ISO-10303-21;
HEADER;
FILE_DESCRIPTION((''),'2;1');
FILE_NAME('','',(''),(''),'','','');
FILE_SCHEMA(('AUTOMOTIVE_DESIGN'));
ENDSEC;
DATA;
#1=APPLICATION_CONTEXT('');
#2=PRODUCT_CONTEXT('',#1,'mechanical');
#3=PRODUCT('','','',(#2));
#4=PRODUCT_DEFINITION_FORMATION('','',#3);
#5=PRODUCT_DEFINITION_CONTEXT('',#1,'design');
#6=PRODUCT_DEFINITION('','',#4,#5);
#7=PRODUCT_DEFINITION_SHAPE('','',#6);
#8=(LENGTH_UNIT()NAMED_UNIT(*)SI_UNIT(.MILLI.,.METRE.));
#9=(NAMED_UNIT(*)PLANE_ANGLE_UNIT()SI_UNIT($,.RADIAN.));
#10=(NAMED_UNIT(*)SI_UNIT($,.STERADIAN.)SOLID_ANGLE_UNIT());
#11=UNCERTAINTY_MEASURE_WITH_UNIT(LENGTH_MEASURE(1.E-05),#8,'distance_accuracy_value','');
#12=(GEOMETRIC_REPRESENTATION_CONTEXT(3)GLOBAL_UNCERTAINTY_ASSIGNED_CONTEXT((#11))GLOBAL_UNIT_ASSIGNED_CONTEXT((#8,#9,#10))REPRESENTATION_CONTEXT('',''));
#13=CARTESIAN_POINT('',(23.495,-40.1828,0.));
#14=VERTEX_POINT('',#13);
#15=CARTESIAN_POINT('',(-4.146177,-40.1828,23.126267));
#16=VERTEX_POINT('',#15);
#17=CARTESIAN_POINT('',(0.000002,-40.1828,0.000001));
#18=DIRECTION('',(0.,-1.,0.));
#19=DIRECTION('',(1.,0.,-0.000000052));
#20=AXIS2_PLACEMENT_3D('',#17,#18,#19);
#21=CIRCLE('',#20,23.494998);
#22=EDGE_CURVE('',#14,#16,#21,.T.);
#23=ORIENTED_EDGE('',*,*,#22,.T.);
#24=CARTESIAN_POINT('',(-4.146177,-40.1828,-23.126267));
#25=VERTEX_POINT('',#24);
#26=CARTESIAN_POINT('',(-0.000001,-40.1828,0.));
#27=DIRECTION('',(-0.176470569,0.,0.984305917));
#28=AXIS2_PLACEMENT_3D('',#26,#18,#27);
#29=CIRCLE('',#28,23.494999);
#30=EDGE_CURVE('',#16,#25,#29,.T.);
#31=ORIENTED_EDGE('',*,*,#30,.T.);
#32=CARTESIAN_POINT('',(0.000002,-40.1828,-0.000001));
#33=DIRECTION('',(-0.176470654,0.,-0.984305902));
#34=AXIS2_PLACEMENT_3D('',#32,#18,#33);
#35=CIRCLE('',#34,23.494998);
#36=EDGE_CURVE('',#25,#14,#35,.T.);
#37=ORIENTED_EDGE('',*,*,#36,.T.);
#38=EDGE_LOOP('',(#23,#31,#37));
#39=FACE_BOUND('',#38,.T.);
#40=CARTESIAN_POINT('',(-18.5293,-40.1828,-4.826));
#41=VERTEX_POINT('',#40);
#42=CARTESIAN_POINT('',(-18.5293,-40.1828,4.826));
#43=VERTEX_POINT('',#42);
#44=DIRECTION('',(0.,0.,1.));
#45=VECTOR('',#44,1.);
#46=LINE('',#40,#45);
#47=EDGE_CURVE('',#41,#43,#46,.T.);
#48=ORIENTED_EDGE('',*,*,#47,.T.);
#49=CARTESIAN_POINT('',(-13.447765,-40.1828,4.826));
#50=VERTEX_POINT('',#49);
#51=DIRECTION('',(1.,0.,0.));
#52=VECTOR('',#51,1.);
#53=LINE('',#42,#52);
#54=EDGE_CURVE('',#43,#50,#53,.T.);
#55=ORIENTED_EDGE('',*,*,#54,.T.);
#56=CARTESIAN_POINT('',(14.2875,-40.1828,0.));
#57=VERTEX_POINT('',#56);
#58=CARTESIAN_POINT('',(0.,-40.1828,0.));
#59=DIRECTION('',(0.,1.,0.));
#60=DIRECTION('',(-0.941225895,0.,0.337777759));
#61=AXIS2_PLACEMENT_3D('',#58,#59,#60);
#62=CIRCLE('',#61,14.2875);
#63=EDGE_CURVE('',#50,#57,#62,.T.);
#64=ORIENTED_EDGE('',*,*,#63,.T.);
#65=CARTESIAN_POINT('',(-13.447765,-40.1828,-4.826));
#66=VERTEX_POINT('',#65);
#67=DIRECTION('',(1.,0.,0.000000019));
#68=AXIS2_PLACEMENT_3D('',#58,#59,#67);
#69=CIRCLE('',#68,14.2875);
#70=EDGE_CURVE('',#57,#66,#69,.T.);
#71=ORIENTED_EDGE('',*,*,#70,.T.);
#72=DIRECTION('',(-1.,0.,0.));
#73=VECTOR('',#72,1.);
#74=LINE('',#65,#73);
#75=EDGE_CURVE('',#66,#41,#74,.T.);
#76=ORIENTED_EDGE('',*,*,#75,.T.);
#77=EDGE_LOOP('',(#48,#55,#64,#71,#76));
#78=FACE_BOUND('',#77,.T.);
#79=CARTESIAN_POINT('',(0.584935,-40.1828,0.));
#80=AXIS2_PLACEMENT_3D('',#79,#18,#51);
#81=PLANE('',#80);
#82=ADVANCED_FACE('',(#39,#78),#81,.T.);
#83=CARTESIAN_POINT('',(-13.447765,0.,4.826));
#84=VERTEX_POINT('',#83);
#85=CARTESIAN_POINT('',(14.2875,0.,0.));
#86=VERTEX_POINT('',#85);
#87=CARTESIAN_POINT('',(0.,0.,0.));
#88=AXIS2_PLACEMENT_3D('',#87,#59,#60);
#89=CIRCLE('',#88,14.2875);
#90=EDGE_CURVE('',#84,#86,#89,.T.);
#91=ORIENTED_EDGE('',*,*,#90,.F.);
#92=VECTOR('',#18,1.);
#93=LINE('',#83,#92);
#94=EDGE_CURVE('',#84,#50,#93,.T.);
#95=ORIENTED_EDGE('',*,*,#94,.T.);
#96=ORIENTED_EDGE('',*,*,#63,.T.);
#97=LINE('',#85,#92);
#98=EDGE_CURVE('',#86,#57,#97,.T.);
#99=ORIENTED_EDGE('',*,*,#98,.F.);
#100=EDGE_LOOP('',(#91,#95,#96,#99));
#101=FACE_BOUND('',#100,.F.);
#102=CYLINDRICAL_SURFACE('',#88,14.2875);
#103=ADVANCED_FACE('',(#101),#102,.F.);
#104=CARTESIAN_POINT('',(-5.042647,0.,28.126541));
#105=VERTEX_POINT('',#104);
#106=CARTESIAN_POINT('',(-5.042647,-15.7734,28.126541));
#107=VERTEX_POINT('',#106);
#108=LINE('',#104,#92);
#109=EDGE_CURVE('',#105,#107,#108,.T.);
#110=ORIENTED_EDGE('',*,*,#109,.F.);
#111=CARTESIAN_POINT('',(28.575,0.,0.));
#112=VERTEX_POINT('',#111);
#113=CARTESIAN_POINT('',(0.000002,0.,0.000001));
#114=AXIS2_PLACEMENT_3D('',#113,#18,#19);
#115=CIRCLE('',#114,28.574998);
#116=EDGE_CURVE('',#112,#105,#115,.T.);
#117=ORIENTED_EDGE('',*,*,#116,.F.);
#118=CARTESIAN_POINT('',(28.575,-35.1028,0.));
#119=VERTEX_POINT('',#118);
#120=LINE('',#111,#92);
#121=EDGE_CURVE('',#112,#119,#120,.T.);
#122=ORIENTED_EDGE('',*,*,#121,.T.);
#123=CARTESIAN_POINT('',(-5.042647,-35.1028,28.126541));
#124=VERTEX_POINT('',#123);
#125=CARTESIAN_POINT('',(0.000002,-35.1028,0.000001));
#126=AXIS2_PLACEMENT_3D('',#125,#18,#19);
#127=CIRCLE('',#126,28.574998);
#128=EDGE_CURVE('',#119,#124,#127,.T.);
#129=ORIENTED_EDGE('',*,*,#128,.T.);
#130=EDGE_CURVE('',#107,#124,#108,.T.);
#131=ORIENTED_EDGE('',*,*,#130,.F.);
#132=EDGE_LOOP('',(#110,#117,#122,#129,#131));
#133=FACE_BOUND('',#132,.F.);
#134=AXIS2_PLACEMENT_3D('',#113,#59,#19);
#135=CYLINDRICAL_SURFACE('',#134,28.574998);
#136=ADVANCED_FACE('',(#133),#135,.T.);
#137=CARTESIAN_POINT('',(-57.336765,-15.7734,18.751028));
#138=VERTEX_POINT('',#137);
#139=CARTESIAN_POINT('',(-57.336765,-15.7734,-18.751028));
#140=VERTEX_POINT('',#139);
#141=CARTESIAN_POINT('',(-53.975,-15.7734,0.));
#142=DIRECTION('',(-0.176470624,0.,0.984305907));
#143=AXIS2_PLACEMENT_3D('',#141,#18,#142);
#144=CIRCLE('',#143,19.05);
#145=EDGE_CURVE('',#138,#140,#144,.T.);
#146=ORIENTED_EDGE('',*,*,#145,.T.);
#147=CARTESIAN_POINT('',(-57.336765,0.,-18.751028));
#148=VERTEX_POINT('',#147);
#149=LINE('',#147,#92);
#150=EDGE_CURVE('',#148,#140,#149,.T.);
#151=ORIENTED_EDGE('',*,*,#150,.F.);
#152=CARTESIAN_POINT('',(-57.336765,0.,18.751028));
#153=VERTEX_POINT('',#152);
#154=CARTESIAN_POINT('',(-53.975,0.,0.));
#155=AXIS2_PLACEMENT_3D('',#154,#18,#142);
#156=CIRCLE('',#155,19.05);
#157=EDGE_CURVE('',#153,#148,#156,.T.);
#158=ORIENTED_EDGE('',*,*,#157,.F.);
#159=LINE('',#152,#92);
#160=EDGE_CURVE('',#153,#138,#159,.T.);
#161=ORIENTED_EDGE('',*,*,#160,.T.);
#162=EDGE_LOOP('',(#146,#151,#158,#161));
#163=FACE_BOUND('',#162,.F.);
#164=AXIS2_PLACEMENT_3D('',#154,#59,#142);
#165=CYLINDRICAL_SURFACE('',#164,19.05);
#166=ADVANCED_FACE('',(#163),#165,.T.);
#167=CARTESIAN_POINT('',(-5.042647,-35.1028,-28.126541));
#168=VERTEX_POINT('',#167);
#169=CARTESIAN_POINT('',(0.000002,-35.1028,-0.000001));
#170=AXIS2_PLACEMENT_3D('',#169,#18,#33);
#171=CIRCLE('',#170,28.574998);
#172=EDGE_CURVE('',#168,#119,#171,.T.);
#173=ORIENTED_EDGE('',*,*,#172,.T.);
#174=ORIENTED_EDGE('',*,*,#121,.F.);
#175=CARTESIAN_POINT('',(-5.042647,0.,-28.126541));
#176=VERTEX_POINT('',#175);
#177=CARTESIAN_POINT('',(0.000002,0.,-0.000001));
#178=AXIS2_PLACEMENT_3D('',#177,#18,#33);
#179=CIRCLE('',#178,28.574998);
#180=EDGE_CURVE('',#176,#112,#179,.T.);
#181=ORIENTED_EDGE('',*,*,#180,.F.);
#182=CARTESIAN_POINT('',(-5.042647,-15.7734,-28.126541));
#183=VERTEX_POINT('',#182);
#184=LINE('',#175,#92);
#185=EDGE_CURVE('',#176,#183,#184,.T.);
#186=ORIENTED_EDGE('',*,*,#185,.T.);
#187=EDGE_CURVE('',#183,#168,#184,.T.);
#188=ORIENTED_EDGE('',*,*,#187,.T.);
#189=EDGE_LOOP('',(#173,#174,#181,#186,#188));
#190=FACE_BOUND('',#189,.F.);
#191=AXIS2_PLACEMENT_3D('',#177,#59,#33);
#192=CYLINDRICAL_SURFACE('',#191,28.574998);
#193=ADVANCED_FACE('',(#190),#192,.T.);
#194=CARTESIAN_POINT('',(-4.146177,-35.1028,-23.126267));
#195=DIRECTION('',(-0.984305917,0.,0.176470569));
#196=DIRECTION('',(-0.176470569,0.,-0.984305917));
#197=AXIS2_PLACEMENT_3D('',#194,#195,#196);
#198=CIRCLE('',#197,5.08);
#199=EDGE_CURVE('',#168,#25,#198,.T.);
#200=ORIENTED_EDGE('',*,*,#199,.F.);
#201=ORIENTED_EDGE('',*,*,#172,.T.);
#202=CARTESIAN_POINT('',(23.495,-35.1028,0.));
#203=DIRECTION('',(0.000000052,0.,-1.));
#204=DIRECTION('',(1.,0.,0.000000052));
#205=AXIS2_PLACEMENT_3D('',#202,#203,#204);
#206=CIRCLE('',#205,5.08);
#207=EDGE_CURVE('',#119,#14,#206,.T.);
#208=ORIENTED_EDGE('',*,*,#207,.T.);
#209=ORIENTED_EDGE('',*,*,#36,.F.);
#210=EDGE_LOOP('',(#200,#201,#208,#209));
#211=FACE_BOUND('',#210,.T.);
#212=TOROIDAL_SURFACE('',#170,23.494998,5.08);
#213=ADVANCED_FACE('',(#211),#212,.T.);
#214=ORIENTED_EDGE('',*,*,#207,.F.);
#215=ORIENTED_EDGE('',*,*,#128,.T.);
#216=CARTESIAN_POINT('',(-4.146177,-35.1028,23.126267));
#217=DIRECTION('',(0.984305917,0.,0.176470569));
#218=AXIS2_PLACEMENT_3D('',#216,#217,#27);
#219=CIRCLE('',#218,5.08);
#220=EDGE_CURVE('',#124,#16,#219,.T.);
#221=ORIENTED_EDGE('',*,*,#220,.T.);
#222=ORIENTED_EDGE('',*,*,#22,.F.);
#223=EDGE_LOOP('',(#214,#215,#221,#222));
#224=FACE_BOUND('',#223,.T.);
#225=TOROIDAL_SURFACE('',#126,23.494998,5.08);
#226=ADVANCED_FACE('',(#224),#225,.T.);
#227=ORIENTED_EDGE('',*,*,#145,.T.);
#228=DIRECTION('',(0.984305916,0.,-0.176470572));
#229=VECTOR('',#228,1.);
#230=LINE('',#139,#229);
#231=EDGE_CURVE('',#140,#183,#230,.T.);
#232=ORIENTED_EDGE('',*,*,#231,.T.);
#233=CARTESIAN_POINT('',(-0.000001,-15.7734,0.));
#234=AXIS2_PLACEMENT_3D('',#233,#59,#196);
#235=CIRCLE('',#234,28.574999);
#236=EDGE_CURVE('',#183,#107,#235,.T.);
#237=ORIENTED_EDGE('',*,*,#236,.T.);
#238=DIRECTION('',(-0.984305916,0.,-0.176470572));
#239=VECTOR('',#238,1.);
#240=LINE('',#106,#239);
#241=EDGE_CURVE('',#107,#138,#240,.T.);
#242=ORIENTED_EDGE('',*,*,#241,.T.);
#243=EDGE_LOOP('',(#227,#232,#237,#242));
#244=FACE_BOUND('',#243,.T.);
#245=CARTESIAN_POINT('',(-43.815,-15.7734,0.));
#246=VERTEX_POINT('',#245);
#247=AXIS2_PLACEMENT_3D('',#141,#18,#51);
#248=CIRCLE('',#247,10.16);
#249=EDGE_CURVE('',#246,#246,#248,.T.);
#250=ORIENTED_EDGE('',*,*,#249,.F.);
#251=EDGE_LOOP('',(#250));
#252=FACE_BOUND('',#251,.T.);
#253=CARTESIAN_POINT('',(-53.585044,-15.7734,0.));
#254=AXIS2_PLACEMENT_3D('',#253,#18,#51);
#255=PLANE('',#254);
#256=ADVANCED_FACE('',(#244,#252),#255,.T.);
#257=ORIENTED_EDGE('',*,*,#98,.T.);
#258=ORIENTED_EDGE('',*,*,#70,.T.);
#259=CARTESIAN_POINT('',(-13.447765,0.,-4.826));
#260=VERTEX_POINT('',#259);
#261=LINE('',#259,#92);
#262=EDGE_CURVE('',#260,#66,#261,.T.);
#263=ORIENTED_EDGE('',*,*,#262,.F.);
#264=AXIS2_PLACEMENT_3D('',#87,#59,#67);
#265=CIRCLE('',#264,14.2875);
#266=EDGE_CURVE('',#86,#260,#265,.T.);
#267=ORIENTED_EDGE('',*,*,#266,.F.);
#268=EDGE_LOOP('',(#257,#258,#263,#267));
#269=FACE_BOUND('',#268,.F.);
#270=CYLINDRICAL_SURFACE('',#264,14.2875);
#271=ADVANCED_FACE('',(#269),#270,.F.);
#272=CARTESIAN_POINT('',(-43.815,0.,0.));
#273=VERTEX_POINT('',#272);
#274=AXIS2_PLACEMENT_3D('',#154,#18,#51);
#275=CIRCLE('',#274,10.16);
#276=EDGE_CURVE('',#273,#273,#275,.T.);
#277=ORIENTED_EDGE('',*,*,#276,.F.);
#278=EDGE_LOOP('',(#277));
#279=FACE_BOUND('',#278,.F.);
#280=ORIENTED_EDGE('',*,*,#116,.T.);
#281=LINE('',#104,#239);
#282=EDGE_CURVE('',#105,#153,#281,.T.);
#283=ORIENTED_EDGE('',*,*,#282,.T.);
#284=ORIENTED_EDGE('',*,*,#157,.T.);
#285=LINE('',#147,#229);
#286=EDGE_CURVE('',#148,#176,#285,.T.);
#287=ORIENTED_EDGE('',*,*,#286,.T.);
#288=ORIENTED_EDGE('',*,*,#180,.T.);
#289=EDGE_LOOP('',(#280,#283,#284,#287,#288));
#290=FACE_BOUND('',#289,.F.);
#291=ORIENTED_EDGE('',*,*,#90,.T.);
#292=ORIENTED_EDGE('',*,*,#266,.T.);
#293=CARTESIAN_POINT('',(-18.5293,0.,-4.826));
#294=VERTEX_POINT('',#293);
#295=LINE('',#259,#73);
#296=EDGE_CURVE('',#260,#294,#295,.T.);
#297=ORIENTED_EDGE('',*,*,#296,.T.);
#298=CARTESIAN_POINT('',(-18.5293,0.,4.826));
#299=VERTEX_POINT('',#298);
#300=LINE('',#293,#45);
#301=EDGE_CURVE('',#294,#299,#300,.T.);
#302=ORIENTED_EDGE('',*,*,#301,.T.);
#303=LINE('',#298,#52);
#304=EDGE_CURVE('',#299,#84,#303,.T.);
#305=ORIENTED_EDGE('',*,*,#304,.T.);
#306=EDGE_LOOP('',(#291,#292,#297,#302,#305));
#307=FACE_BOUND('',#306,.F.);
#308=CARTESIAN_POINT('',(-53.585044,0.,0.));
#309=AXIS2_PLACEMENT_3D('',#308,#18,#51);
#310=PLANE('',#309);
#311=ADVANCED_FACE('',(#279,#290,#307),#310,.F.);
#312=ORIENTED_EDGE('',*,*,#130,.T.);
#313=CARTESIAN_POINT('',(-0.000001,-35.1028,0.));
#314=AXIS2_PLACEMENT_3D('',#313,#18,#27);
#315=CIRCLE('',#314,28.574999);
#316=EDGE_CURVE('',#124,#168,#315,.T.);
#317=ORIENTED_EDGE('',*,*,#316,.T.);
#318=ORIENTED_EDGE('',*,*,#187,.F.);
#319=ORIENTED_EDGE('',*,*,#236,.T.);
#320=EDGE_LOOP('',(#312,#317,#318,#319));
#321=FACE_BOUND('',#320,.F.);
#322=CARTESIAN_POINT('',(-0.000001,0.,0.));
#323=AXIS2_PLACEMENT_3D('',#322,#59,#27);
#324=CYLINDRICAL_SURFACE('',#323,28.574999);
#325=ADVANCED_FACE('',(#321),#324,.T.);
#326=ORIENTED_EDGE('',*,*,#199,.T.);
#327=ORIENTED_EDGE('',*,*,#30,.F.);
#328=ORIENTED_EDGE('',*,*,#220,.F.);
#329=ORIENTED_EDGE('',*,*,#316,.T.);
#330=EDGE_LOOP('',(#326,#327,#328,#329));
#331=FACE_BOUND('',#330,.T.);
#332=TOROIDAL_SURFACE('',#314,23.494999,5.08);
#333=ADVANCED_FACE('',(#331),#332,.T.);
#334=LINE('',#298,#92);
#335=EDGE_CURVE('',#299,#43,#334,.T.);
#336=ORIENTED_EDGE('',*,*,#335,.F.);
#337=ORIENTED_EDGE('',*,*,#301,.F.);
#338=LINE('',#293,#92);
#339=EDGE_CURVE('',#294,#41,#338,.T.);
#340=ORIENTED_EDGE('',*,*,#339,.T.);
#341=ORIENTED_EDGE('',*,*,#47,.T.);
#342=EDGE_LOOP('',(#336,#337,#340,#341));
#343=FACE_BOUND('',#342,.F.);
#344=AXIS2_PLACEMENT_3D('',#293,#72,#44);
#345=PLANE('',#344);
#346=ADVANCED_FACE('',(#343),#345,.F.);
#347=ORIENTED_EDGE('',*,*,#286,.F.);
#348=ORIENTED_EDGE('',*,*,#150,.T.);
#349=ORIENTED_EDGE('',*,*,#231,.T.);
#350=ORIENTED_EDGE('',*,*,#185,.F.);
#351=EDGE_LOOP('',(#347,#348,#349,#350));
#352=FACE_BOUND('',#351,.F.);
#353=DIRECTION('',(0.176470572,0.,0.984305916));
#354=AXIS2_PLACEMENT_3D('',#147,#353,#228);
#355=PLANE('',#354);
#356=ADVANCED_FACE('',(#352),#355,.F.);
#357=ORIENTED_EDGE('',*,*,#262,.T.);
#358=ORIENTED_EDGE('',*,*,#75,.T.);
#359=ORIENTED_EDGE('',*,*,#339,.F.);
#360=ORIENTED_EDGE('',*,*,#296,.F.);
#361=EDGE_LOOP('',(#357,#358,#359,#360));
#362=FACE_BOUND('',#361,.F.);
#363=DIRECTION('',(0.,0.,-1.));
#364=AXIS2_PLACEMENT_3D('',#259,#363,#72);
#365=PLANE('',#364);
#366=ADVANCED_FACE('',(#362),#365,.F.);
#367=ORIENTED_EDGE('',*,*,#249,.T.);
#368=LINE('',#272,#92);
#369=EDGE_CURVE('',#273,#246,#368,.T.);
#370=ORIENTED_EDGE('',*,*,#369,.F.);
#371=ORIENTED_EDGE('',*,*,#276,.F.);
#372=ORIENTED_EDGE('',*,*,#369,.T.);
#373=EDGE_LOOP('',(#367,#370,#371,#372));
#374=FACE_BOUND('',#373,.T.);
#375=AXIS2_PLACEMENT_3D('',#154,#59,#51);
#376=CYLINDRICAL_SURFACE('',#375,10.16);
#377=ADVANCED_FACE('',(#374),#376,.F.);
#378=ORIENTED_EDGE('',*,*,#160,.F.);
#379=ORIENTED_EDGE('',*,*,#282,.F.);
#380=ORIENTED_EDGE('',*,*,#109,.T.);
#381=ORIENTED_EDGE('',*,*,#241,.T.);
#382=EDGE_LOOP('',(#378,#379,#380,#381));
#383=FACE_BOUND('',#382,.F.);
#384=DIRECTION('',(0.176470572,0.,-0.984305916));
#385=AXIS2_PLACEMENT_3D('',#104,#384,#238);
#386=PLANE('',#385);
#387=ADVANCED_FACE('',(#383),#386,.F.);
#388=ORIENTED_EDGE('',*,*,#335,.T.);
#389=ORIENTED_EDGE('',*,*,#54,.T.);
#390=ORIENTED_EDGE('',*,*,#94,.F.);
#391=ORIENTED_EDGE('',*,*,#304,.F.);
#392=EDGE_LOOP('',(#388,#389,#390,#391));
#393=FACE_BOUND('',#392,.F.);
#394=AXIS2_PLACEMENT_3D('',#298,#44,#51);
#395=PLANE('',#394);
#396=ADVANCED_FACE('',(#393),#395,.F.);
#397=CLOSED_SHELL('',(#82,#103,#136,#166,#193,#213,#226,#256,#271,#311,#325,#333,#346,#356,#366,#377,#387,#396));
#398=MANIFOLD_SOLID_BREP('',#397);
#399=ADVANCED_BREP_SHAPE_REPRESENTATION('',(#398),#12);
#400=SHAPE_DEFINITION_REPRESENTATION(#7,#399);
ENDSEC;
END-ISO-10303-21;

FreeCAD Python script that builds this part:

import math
import FreeCAD as App
import Part
import Sketcher
Q = App.Units.Quantity


def edges_at(feature, points):
    """Names of the edges that pass closest to the given points."""
    edges = feature.Shape.Edges
    near = lambda p: min(range(len(edges)), key=lambda i: edges[i].distToShape(Part.Vertex(*p))[0])
    return sorted({f"Edge{near(p) + 1}" for p in points})

doc = App.newDocument("Part")
body = doc.addObject("PartDesign::Body", "Body")

# Sketch on XZ plane
sketch1 = body.newObject("Sketcher::SketchObject", "Sketch")
sketch1.AttachmentSupport = (doc.getObject("XZ_Plane"), [""])
sketch1.MapMode = "FlatFace"
sketch1.addGeometry([
    Part.ArcOfCircle(Part.Circle(App.Vector(0, 0, 0), App.Vector(0, 0, 1), 29), math.radians(-100), math.radians(0)),  # 0
    Part.ArcOfCircle(Part.Circle(App.Vector(0, 0, 0), App.Vector(0, 0, 1), 29), math.radians(0), math.radians(100)),  # 1
    Part.ArcOfCircle(Part.Circle(App.Vector(0, 0, 0), App.Vector(0, 0, 1), 29), math.radians(100), math.radians(260)),  # 2
    Part.LineSegment(App.Vector(-19, 5, 0), App.Vector(-13, 5, 0)),  # 3
    Part.ArcOfCircle(Part.Circle(App.Vector(0, 0, 0), App.Vector(0, 0, 1), 14), math.radians(0), math.radians(160)),  # 4
    Part.ArcOfCircle(Part.Circle(App.Vector(0, 0, 0), App.Vector(0, 0, 1), 14), math.radians(-160), math.radians(0)),  # 5
    Part.LineSegment(App.Vector(-13, -5, 0), App.Vector(-19, -5, 0)),  # 6
    Part.LineSegment(App.Vector(-19, -5, 0), App.Vector(-19, 5, 0)),  # 7
], False)
sketch1.addConstraint([
    Sketcher.Constraint("Tangent", 0, 2, 1, 1),
    Sketcher.Constraint("Tangent", 1, 2, 2, 1),
    Sketcher.Constraint("Tangent", 2, 2, 0, 1),
    Sketcher.Constraint("Coincident", 3, 2, 4, 2),
    Sketcher.Constraint("Tangent", 4, 1, 5, 2),
    Sketcher.Constraint("Coincident", 5, 1, 6, 1),
    Sketcher.Constraint("Coincident", 6, 2, 7, 1),
    Sketcher.Constraint("Coincident", 7, 2, 3, 1),
    Sketcher.Constraint("Horizontal", 3),
    Sketcher.Constraint("Horizontal", 6),
    Sketcher.Constraint("Vertical", 7),
    Sketcher.Constraint("Coincident", 0, 3, -1, 1),
    Sketcher.Constraint("Coincident", 4, 3, -1, 1),
    Sketcher.Constraint("Equal", 4, 5),
    Sketcher.Constraint("PointOnObject", 0, 2, -1),
    Sketcher.Constraint("PointOnObject", 4, 1, -1),
    Sketcher.Constraint("Vertical", 1, 2, 2, 2),
    Sketcher.Constraint("Vertical", 3, 2, 5, 1),
    Sketcher.Constraint("Radius", 0, Q("1.1249999 in")),
    Sketcher.Constraint("Radius", 4, Q("0.5625 in")),
    Sketcher.Constraint("DistanceY", 7, 1, 7, 2, Q("0.38 in")),
    Sketcher.Constraint("DistanceX", 6, 2, -1, 1, Q("0.7295 in")),
    Sketcher.Constraint("DistanceY", -1, 1, 1, 2, Q("28.126541 mm")),
])
pad1 = body.newObject("PartDesign::Pad", "Pad")
pad1.Profile = sketch1
pad1.Length = Q("1.582 in")

# Sketch on XZ plane
sketch2 = body.newObject("Sketcher::SketchObject", "Sketch001")
sketch2.AttachmentSupport = (doc.getObject("XZ_Plane"), [""])
sketch2.MapMode = "FlatFace"
sketch2.addGeometry([
    Part.ArcOfCircle(Part.Circle(App.Vector(0, 0, 0), App.Vector(0, 0, 1), 29), math.radians(100), math.radians(260)),  # 0
    Part.LineSegment(App.Vector(-5, 28, 0), App.Vector(-57, 19, 0)),  # 1
    Part.ArcOfCircle(Part.Circle(App.Vector(-54, 0, 0), App.Vector(0, 0, 1), 19), math.radians(0), math.radians(100)),  # 2
    Part.ArcOfCircle(Part.Circle(App.Vector(-54, 0, 0), App.Vector(0, 0, 1), 19), math.radians(-100), math.radians(0)),  # 3
    Part.LineSegment(App.Vector(-57, -19, 0), App.Vector(-5, -28, 0)),  # 4
], False)
sketch2.addConstraint([
    Sketcher.Constraint("Tangent", 0, 1, 1, 1),
    Sketcher.Constraint("Tangent", 1, 2, 2, 2),
    Sketcher.Constraint("Tangent", 2, 1, 3, 2),
    Sketcher.Constraint("Tangent", 3, 1, 4, 1),
    Sketcher.Constraint("Tangent", 4, 2, 0, 2),
    Sketcher.Constraint("Coincident", 0, 3, -1, 1),
    Sketcher.Constraint("Equal", 2, 3),
    Sketcher.Constraint("PointOnObject", 2, 3, -1),
    Sketcher.Constraint("PointOnObject", 2, 1, -1),
    Sketcher.Constraint("Radius", 2, Q("0.75 in")),
    Sketcher.Constraint("Radius", 0, Q("1.125 in")),
    Sketcher.Constraint("DistanceX", 2, 3, -1, 1, Q("2.125 in")),
])
pad2 = body.newObject("PartDesign::Pad", "Pad001")
pad2.Profile = sketch2
pad2.Length = Q("0.621 in")

# Sketch on XZ plane
sketch3 = body.newObject("Sketcher::SketchObject", "Sketch002")
sketch3.AttachmentSupport = (doc.getObject("XZ_Plane"), [""])
sketch3.MapMode = "FlatFace"
sketch3.addGeometry([
    Part.ArcOfCircle(Part.Circle(App.Vector(-54, 0, 0), App.Vector(0, 0, 1), 19), math.radians(0), math.radians(100)),
    Part.ArcOfCircle(Part.Circle(App.Vector(-54, 0, 0), App.Vector(0, 0, 1), 19), math.radians(100), math.radians(260)),
    Part.ArcOfCircle(Part.Circle(App.Vector(-54, 0, 0), App.Vector(0, 0, 1), 19), math.radians(-100), math.radians(0)),
    Part.Circle(App.Vector(-54, 0, 0), App.Vector(0, 0, 1), 10),
], False)
sketch3.addConstraint([
    Sketcher.Constraint("Tangent", 0, 2, 1, 1),
    Sketcher.Constraint("Tangent", 1, 2, 2, 1),
    Sketcher.Constraint("Tangent", 2, 2, 0, 1),
    Sketcher.Constraint("Coincident", 3, 3, 0, 3),
    Sketcher.Constraint("Symmetric", 0, 2, 1, 2, -1),
    Sketcher.Constraint("PointOnObject", 2, 2, -1),
    Sketcher.Constraint("Diameter", 3, Q("0.8 in")),
    Sketcher.Constraint("Radius", 0, Q("0.75 in")),
    Sketcher.Constraint("DistanceX", 0, 3, -1, 1, Q("2.125 in")),
    Sketcher.Constraint("DistanceY", 0, 3, 0, 2, Q("18.751029 mm")),
])
pad3 = body.newObject("PartDesign::Pad", "Pad002")
pad3.Profile = sketch3
pad3.Length = Q("0.621 in")
doc.recompute()

fillet = body.newObject("PartDesign::Fillet", "Fillet")
fillet.Base = (pad3, edges_at(pad3, [(-28.575, -40.183, 0)]))
fillet.Radius = Q("0.2 in")

doc.recompute()
